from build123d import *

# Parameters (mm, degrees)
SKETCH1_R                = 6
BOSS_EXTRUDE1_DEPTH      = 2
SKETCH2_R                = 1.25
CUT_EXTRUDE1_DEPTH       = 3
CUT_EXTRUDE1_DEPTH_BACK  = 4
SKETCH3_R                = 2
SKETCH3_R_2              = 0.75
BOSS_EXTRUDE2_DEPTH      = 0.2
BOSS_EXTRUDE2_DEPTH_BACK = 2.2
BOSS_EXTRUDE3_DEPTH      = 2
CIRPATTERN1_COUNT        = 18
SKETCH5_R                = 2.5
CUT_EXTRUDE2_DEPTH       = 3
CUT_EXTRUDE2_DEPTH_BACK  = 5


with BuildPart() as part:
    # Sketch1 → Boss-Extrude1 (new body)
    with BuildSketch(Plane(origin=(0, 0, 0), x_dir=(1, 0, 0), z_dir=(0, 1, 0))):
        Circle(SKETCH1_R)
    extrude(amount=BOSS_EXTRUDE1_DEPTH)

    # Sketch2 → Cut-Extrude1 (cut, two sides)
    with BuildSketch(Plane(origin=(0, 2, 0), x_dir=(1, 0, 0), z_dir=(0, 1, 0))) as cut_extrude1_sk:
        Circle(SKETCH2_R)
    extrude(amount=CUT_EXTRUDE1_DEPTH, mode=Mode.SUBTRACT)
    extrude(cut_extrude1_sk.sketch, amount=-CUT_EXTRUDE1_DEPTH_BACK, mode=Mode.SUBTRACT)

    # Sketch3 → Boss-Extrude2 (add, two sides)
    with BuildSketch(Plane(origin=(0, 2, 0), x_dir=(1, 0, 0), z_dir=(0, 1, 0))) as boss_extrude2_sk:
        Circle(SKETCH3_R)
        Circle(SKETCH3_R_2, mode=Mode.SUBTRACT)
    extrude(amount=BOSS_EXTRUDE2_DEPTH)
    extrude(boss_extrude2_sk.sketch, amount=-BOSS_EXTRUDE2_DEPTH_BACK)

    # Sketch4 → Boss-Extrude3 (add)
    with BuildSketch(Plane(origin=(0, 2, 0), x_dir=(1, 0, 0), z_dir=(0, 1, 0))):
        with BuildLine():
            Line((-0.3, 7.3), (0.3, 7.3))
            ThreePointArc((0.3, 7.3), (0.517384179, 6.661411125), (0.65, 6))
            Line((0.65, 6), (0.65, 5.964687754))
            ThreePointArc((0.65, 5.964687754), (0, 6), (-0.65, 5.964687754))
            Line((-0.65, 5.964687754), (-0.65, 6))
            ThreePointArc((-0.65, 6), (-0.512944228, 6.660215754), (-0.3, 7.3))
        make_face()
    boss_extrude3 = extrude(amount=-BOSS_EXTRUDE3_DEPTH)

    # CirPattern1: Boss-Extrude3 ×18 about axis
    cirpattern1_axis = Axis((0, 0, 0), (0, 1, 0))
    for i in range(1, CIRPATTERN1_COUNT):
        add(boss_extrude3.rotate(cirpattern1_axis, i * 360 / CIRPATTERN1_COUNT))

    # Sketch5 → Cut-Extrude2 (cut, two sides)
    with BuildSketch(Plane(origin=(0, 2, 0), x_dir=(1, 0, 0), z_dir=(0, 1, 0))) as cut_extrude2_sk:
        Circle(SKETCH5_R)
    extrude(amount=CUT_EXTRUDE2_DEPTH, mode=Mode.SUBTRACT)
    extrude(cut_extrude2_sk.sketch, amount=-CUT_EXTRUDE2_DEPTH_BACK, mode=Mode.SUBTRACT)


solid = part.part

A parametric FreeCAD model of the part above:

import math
import FreeCAD as App
import Part
import Sketcher
Q = App.Units.Quantity

doc = App.newDocument("Part")
body = doc.addObject("PartDesign::Body", "Body")

# Sketch on XZ plane
sketch1 = body.newObject("Sketcher::SketchObject", "Sketch")
sketch1.AttachmentSupport = (doc.getObject("XZ_Plane"), [""])
sketch1.MapMode = "FlatFace"
sketch1.addGeometry(Part.Circle(App.Vector(0, 0, 0), App.Vector(0, 0, 1), 6), False)
sketch1.addConstraint(Sketcher.Constraint("Coincident", 0, 3, -1, 1))
sketch1.addConstraint(Sketcher.Constraint("Diameter", 0, Q("12 mm")))
pad1 = body.newObject("PartDesign::Pad", "Pad")
pad1.Profile = sketch1
pad1.Length = 2
pad1.Reversed = True

# Sketch on XZ plane
sketch2 = body.newObject("Sketcher::SketchObject", "Sketch001")
sketch2.AttachmentSupport = (doc.getObject("XZ_Plane"), [""])
sketch2.MapMode = "FlatFace"
sketch2.AttachmentOffset = App.Placement(App.Vector(0, 0, -2), App.Rotation())
sketch2.addGeometry(Part.Circle(App.Vector(0, 0, 0), App.Vector(0, 0, 1), 1.25), False)
sketch2.addConstraint(Sketcher.Constraint("Coincident", 0, 3, -1, 1))
sketch2.addConstraint(Sketcher.Constraint("Diameter", 0, Q("2.5 mm")))
pocket1 = body.newObject("PartDesign::Pocket", "Pocket")
pocket1.Profile = sketch2
pocket1.Type = "ThroughAll"
pocket1.Midplane = True

# Sketch on XZ plane
sketch3 = body.newObject("Sketcher::SketchObject", "Sketch002")
sketch3.AttachmentSupport = (doc.getObject("XZ_Plane"), [""])
sketch3.MapMode = "FlatFace"
sketch3.AttachmentOffset = App.Placement(App.Vector(0, 0, -2), App.Rotation())
sketch3.addGeometry(Part.Circle(App.Vector(0, 0, 0), App.Vector(0, 0, 1), 2), False)
sketch3.addGeometry(Part.Circle(App.Vector(0, 0, 0), App.Vector(0, 0, 1), 0.75), False)
sketch3.addConstraint(Sketcher.Constraint("Coincident", 0, 3, -1, 1))
sketch3.addConstraint(Sketcher.Constraint("Coincident", 1, 3, -1, 1))
sketch3.addConstraint(Sketcher.Constraint("Diameter", 0, Q("4 mm")))
sketch3.addConstraint(Sketcher.Constraint("Diameter", 1, Q("1.5 mm")))
pad2 = body.newObject("PartDesign::Pad", "Pad001")
pad2.Profile = sketch3
pad2.Type = "TwoLengths"
pad2.Length = 0.2
pad2.Length2 = 2.2
pad2.Reversed = True

# Sketch on XZ plane
sketch4 = body.newObject("Sketcher::SketchObject", "Sketch003")
sketch4.AttachmentSupport = (doc.getObject("XZ_Plane"), [""])
sketch4.MapMode = "FlatFace"
sketch4.AttachmentOffset = App.Placement(App.Vector(0, 0, -2), App.Rotation())
sketch4.addGeometry(Part.LineSegment(App.Vector(0.3, -7.3, 0), App.Vector(-0.3, -7.3, 0)), False)
sketch4.addGeometry(Part.ArcOfCircle(Part.Circle(App.Vector(5.07341, -5.156197, 0), App.Vector(0, 0, 1), 5.785276), math.radians(-171.613295), math.radians(-158.249728)), False)
sketch4.addGeometry(Part.LineSegment(App.Vector(-0.65, -6, 0), App.Vector(-0.65, -5.964688, 0)), False)
sketch4.addGeometry(Part.ArcOfCircle(Part.Circle(App.Vector(0, 0, 0), App.Vector(0, 0, 1), 6), math.radians(-96.219248), math.radians(-83.780752)), False)
sketch4.addGeometry(Part.LineSegment(App.Vector(0.65, -5.964688, 0), App.Vector(0.65, -6, 0)), False)
sketch4.addGeometry(Part.ArcOfCircle(Part.Circle(App.Vector(-4.487979, -5.313813, 0), App.Vector(0, 0, 1), 5.183597), math.radians(-22.530031), math.radians(-7.606945)), False)
sketch4.addConstraint(Sketcher.Constraint("Coincident", 0, 2, 1, 2))
sketch4.addConstraint(Sketcher.Constraint("Coincident", 1, 1, 2, 1))
sketch4.addConstraint(Sketcher.Constraint("Coincident", 2, 2, 3, 1))
sketch4.addConstraint(Sketcher.Constraint("Coincident", 3, 2, 4, 1))
sketch4.addConstraint(Sketcher.Constraint("Coincident", 4, 2, 5, 2))
sketch4.addConstraint(Sketcher.Constraint("Coincident", 5, 1, 0, 1))
sketch4.addConstraint(Sketcher.Constraint("Horizontal", 0))
sketch4.addConstraint(Sketcher.Constraint("Vertical", 2))
sketch4.addConstraint(Sketcher.Constraint("Vertical", 4))
sketch4.addConstraint(Sketcher.Constraint("Coincident", 3, 3, -1, 1))
sketch4.addConstraint(Sketcher.Constraint("Symmetric", 1, 1, 4, 2, -2))
sketch4.addConstraint(Sketcher.Constraint("Radius", 3, Q("6 mm")))
sketch4.addConstraint(Sketcher.Constraint("DistanceX", 0, 2, 0, 1, Q("0.6 mm")))
sketch4.addConstraint(Sketcher.Constraint("DistanceY", 1, 1, -1, 1, Q("6 mm")))
sketch4.addConstraint(Sketcher.Constraint("DistanceX", 0, 2, -1, 1, Q("0.3 mm")))
sketch4.addConstraint(Sketcher.Constraint("DistanceY", 0, 2, -1, 1, Q("7.3 mm")))
sketch4.addConstraint(Sketcher.Constraint("DistanceX", 2, 2, 3, 2, Q("1.3 mm")))
sketch4.addConstraint(Sketcher.Constraint("Radius", 1, Q("5.785276 mm")))
sketch4.addConstraint(Sketcher.Constraint("Radius", 5, Q("5.183597 mm")))
pad3 = body.newObject("PartDesign::Pad", "Pad002")
pad3.Profile = sketch4
pad3.Length = 2
doc.recompute()

polarpattern = body.newObject("PartDesign::PolarPattern", "PolarPattern")
polarpattern.Originals = [pad3]
polarpattern.Axis = (doc.getObject("Y_Axis"), [""])
polarpattern.Angle = 360
polarpattern.Occurrences = 18
body.Tip = polarpattern

# Sketch on XZ plane
sketch5 = body.newObject("Sketcher::SketchObject", "Sketch004")
sketch5.AttachmentSupport = (doc.getObject("XZ_Plane"), [""])
sketch5.MapMode = "FlatFace"
sketch5.AttachmentOffset = App.Placement(App.Vector(0, 0, -2), App.Rotation())
sketch5.addGeometry(Part.Circle(App.Vector(0, 0, 0), App.Vector(0, 0, 1), 2.5), False)
sketch5.addConstraint(Sketcher.Constraint("Coincident", 0, 3, -1, 1))
sketch5.addConstraint(Sketcher.Constraint("Diameter", 0, Q("5 mm")))
pocket2 = body.newObject("PartDesign::Pocket", "Pocket001")
pocket2.Profile = sketch5
pocket2.Type = "ThroughAll"
pocket2.Midplane = True

doc.recompute()
